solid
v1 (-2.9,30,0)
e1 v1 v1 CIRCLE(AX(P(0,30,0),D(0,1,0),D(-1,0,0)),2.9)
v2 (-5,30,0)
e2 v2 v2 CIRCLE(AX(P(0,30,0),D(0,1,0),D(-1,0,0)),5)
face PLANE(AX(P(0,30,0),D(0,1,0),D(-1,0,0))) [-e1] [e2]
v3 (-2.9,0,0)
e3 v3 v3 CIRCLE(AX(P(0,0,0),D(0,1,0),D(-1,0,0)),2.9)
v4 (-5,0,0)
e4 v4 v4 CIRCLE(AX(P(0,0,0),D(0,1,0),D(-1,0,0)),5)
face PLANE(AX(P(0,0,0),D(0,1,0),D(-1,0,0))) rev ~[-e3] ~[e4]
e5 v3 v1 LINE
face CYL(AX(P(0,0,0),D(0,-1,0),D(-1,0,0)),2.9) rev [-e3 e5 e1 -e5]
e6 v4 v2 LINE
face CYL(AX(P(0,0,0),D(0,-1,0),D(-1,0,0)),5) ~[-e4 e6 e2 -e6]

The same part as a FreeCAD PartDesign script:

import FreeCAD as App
import Part
import Sketcher

doc = App.newDocument("Part")
body = doc.addObject("PartDesign::Body", "Body")

# Sketch on XZ plane
sketch1 = body.newObject("Sketcher::SketchObject", "Sketch")
sketch1.AttachmentSupport = (doc.getObject("XZ_Plane"), [""])
sketch1.MapMode = "FlatFace"
sketch1.addGeometry(Part.Circle(App.Vector(0, 0, 0), App.Vector(0, 0, 1), 5), False)
sketch1.addGeometry(Part.Circle(App.Vector(0, 0, 0), App.Vector(0, 0, 1), 2.9), False)
sketch1.addConstraint(Sketcher.Constraint("Coincident", 0, 3, -1, 1))
sketch1.addConstraint(Sketcher.Constraint("Coincident", 1, 3, -1, 1))
sketch1.addConstraint(Sketcher.Constraint("Diameter", 0, 10.0))
sketch1.addConstraint(Sketcher.Constraint("Diameter", 1, 5.8))
pad1 = body.newObject("PartDesign::Pad", "Pad")
pad1.Profile = sketch1
pad1.Length = 30
pad1.Reversed = True

doc.recompute()
